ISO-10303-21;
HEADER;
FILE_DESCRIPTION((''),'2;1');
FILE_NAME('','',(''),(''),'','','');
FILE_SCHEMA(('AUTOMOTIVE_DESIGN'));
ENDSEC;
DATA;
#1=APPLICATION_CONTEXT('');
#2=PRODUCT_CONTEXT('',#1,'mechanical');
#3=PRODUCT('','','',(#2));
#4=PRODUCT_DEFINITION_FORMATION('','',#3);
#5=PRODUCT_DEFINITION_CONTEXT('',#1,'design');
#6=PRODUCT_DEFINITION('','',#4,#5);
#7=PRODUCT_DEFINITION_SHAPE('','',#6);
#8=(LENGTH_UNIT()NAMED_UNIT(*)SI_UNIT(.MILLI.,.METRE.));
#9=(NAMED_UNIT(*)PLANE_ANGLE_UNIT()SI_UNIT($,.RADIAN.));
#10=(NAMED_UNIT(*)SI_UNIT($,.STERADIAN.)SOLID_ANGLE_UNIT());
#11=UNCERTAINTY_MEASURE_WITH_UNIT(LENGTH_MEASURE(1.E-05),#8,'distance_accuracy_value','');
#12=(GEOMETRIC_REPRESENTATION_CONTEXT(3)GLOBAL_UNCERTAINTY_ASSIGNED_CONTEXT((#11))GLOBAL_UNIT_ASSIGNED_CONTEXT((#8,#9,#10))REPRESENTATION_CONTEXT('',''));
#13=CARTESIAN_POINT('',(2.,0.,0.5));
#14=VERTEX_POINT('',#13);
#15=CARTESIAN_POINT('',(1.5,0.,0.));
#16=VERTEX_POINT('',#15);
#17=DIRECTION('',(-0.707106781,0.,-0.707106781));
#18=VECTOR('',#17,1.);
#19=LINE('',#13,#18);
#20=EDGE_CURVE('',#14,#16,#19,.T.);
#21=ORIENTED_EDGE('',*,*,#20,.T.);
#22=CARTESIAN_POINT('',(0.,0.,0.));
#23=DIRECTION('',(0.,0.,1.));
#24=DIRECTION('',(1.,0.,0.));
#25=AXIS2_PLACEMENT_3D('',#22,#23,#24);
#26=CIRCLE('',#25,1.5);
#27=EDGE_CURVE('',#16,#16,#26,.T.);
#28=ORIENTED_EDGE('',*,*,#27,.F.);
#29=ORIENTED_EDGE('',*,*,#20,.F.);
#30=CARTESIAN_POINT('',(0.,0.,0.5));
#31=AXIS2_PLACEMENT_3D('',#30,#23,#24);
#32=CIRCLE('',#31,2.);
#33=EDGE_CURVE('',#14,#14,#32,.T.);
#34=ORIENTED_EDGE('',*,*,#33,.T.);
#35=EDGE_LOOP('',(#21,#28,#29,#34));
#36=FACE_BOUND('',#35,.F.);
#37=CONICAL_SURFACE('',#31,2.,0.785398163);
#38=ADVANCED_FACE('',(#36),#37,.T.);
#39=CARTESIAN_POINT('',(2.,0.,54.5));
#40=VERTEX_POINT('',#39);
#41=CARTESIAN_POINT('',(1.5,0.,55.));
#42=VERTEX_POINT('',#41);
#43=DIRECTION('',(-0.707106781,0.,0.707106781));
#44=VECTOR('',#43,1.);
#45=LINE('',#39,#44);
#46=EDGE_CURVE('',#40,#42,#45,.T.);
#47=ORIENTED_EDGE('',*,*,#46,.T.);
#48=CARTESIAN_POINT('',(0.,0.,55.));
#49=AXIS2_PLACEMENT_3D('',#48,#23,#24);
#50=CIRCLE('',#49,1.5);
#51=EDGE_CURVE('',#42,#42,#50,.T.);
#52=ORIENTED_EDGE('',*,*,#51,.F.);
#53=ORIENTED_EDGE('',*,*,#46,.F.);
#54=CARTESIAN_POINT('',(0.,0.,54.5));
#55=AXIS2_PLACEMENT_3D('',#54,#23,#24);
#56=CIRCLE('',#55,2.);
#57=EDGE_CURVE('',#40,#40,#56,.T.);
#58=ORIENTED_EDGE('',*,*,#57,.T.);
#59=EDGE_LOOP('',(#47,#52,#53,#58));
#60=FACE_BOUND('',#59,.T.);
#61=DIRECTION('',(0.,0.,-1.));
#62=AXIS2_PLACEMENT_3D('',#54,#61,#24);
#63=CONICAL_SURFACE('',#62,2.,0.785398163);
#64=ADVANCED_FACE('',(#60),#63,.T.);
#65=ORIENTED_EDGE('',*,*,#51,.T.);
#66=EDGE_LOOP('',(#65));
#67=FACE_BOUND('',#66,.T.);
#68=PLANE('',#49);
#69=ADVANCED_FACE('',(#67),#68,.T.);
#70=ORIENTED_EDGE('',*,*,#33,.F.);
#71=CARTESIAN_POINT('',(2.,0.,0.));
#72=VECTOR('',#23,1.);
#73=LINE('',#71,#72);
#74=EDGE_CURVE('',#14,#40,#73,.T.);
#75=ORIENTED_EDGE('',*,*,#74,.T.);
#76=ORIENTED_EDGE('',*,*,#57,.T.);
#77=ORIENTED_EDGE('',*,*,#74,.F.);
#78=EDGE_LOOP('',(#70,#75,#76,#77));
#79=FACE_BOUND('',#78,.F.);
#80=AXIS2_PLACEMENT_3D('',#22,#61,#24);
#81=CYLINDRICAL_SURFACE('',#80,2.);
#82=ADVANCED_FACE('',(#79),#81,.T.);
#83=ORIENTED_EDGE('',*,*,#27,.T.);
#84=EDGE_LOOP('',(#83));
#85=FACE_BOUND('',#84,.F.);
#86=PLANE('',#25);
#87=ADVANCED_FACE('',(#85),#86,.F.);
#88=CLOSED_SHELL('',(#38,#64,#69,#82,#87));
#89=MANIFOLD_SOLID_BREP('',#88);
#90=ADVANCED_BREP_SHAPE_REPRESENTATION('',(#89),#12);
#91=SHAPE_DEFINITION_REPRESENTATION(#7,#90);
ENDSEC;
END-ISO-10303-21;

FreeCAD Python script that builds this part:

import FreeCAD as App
import Part
import Sketcher
Q = App.Units.Quantity


def edges_at(feature, points):
    """Names of the edges that pass closest to the given points."""
    edges = feature.Shape.Edges
    near = lambda p: min(range(len(edges)), key=lambda i: edges[i].distToShape(Part.Vertex(*p))[0])
    return sorted({f"Edge{near(p) + 1}" for p in points})

doc = App.newDocument("Part")
params = doc.addObject("Spreadsheet::Sheet", "Params")
for row, (alias, value) in enumerate([
    ("sketch1_diameter", "4 mm"),
    ("pad1_length", "55 mm"),
    ("chamfer_size", "0.5 mm"),
    ("chamfer2_size", "0.5 mm"),
], start=1):
    params.set(f"A{row}", alias)
    params.set(f"B{row}", "=" + value)
    params.setAlias(f"B{row}", alias)

body = doc.addObject("PartDesign::Body", "Body")

# Sketch on XY plane
sketch1 = body.newObject("Sketcher::SketchObject", "Sketch")
sketch1.AttachmentSupport = (doc.getObject("XY_Plane"), [""])
sketch1.MapMode = "FlatFace"
sketch1.addGeometry(Part.Circle(App.Vector(0, 0, 0), App.Vector(0, 0, 1), 2), False)
sketch1.addConstraint(Sketcher.Constraint("Coincident", 0, 3, -1, 1))
sketch1.addConstraint(Sketcher.Constraint("Diameter", 0, Q("4 mm")))
sketch1.setExpression("Constraints[1]", "Params.sketch1_diameter")
pad1 = body.newObject("PartDesign::Pad", "Pad")
pad1.Profile = sketch1
pad1.setExpression("Length", "Params.pad1_length")
doc.recompute()

chamfer = body.newObject("PartDesign::Chamfer", "Chamfer")
chamfer.Base = (pad1, edges_at(pad1, [(-2, 0, 0)]))
chamfer.setExpression("Size", "Params.chamfer_size")
doc.recompute()

chamfer2 = body.newObject("PartDesign::Chamfer", "Chamfer001")
chamfer2.Base = (chamfer, edges_at(chamfer, [(-2, 0, 55)]))
chamfer2.setExpression("Size", "Params.chamfer2_size")

doc.recompute()
